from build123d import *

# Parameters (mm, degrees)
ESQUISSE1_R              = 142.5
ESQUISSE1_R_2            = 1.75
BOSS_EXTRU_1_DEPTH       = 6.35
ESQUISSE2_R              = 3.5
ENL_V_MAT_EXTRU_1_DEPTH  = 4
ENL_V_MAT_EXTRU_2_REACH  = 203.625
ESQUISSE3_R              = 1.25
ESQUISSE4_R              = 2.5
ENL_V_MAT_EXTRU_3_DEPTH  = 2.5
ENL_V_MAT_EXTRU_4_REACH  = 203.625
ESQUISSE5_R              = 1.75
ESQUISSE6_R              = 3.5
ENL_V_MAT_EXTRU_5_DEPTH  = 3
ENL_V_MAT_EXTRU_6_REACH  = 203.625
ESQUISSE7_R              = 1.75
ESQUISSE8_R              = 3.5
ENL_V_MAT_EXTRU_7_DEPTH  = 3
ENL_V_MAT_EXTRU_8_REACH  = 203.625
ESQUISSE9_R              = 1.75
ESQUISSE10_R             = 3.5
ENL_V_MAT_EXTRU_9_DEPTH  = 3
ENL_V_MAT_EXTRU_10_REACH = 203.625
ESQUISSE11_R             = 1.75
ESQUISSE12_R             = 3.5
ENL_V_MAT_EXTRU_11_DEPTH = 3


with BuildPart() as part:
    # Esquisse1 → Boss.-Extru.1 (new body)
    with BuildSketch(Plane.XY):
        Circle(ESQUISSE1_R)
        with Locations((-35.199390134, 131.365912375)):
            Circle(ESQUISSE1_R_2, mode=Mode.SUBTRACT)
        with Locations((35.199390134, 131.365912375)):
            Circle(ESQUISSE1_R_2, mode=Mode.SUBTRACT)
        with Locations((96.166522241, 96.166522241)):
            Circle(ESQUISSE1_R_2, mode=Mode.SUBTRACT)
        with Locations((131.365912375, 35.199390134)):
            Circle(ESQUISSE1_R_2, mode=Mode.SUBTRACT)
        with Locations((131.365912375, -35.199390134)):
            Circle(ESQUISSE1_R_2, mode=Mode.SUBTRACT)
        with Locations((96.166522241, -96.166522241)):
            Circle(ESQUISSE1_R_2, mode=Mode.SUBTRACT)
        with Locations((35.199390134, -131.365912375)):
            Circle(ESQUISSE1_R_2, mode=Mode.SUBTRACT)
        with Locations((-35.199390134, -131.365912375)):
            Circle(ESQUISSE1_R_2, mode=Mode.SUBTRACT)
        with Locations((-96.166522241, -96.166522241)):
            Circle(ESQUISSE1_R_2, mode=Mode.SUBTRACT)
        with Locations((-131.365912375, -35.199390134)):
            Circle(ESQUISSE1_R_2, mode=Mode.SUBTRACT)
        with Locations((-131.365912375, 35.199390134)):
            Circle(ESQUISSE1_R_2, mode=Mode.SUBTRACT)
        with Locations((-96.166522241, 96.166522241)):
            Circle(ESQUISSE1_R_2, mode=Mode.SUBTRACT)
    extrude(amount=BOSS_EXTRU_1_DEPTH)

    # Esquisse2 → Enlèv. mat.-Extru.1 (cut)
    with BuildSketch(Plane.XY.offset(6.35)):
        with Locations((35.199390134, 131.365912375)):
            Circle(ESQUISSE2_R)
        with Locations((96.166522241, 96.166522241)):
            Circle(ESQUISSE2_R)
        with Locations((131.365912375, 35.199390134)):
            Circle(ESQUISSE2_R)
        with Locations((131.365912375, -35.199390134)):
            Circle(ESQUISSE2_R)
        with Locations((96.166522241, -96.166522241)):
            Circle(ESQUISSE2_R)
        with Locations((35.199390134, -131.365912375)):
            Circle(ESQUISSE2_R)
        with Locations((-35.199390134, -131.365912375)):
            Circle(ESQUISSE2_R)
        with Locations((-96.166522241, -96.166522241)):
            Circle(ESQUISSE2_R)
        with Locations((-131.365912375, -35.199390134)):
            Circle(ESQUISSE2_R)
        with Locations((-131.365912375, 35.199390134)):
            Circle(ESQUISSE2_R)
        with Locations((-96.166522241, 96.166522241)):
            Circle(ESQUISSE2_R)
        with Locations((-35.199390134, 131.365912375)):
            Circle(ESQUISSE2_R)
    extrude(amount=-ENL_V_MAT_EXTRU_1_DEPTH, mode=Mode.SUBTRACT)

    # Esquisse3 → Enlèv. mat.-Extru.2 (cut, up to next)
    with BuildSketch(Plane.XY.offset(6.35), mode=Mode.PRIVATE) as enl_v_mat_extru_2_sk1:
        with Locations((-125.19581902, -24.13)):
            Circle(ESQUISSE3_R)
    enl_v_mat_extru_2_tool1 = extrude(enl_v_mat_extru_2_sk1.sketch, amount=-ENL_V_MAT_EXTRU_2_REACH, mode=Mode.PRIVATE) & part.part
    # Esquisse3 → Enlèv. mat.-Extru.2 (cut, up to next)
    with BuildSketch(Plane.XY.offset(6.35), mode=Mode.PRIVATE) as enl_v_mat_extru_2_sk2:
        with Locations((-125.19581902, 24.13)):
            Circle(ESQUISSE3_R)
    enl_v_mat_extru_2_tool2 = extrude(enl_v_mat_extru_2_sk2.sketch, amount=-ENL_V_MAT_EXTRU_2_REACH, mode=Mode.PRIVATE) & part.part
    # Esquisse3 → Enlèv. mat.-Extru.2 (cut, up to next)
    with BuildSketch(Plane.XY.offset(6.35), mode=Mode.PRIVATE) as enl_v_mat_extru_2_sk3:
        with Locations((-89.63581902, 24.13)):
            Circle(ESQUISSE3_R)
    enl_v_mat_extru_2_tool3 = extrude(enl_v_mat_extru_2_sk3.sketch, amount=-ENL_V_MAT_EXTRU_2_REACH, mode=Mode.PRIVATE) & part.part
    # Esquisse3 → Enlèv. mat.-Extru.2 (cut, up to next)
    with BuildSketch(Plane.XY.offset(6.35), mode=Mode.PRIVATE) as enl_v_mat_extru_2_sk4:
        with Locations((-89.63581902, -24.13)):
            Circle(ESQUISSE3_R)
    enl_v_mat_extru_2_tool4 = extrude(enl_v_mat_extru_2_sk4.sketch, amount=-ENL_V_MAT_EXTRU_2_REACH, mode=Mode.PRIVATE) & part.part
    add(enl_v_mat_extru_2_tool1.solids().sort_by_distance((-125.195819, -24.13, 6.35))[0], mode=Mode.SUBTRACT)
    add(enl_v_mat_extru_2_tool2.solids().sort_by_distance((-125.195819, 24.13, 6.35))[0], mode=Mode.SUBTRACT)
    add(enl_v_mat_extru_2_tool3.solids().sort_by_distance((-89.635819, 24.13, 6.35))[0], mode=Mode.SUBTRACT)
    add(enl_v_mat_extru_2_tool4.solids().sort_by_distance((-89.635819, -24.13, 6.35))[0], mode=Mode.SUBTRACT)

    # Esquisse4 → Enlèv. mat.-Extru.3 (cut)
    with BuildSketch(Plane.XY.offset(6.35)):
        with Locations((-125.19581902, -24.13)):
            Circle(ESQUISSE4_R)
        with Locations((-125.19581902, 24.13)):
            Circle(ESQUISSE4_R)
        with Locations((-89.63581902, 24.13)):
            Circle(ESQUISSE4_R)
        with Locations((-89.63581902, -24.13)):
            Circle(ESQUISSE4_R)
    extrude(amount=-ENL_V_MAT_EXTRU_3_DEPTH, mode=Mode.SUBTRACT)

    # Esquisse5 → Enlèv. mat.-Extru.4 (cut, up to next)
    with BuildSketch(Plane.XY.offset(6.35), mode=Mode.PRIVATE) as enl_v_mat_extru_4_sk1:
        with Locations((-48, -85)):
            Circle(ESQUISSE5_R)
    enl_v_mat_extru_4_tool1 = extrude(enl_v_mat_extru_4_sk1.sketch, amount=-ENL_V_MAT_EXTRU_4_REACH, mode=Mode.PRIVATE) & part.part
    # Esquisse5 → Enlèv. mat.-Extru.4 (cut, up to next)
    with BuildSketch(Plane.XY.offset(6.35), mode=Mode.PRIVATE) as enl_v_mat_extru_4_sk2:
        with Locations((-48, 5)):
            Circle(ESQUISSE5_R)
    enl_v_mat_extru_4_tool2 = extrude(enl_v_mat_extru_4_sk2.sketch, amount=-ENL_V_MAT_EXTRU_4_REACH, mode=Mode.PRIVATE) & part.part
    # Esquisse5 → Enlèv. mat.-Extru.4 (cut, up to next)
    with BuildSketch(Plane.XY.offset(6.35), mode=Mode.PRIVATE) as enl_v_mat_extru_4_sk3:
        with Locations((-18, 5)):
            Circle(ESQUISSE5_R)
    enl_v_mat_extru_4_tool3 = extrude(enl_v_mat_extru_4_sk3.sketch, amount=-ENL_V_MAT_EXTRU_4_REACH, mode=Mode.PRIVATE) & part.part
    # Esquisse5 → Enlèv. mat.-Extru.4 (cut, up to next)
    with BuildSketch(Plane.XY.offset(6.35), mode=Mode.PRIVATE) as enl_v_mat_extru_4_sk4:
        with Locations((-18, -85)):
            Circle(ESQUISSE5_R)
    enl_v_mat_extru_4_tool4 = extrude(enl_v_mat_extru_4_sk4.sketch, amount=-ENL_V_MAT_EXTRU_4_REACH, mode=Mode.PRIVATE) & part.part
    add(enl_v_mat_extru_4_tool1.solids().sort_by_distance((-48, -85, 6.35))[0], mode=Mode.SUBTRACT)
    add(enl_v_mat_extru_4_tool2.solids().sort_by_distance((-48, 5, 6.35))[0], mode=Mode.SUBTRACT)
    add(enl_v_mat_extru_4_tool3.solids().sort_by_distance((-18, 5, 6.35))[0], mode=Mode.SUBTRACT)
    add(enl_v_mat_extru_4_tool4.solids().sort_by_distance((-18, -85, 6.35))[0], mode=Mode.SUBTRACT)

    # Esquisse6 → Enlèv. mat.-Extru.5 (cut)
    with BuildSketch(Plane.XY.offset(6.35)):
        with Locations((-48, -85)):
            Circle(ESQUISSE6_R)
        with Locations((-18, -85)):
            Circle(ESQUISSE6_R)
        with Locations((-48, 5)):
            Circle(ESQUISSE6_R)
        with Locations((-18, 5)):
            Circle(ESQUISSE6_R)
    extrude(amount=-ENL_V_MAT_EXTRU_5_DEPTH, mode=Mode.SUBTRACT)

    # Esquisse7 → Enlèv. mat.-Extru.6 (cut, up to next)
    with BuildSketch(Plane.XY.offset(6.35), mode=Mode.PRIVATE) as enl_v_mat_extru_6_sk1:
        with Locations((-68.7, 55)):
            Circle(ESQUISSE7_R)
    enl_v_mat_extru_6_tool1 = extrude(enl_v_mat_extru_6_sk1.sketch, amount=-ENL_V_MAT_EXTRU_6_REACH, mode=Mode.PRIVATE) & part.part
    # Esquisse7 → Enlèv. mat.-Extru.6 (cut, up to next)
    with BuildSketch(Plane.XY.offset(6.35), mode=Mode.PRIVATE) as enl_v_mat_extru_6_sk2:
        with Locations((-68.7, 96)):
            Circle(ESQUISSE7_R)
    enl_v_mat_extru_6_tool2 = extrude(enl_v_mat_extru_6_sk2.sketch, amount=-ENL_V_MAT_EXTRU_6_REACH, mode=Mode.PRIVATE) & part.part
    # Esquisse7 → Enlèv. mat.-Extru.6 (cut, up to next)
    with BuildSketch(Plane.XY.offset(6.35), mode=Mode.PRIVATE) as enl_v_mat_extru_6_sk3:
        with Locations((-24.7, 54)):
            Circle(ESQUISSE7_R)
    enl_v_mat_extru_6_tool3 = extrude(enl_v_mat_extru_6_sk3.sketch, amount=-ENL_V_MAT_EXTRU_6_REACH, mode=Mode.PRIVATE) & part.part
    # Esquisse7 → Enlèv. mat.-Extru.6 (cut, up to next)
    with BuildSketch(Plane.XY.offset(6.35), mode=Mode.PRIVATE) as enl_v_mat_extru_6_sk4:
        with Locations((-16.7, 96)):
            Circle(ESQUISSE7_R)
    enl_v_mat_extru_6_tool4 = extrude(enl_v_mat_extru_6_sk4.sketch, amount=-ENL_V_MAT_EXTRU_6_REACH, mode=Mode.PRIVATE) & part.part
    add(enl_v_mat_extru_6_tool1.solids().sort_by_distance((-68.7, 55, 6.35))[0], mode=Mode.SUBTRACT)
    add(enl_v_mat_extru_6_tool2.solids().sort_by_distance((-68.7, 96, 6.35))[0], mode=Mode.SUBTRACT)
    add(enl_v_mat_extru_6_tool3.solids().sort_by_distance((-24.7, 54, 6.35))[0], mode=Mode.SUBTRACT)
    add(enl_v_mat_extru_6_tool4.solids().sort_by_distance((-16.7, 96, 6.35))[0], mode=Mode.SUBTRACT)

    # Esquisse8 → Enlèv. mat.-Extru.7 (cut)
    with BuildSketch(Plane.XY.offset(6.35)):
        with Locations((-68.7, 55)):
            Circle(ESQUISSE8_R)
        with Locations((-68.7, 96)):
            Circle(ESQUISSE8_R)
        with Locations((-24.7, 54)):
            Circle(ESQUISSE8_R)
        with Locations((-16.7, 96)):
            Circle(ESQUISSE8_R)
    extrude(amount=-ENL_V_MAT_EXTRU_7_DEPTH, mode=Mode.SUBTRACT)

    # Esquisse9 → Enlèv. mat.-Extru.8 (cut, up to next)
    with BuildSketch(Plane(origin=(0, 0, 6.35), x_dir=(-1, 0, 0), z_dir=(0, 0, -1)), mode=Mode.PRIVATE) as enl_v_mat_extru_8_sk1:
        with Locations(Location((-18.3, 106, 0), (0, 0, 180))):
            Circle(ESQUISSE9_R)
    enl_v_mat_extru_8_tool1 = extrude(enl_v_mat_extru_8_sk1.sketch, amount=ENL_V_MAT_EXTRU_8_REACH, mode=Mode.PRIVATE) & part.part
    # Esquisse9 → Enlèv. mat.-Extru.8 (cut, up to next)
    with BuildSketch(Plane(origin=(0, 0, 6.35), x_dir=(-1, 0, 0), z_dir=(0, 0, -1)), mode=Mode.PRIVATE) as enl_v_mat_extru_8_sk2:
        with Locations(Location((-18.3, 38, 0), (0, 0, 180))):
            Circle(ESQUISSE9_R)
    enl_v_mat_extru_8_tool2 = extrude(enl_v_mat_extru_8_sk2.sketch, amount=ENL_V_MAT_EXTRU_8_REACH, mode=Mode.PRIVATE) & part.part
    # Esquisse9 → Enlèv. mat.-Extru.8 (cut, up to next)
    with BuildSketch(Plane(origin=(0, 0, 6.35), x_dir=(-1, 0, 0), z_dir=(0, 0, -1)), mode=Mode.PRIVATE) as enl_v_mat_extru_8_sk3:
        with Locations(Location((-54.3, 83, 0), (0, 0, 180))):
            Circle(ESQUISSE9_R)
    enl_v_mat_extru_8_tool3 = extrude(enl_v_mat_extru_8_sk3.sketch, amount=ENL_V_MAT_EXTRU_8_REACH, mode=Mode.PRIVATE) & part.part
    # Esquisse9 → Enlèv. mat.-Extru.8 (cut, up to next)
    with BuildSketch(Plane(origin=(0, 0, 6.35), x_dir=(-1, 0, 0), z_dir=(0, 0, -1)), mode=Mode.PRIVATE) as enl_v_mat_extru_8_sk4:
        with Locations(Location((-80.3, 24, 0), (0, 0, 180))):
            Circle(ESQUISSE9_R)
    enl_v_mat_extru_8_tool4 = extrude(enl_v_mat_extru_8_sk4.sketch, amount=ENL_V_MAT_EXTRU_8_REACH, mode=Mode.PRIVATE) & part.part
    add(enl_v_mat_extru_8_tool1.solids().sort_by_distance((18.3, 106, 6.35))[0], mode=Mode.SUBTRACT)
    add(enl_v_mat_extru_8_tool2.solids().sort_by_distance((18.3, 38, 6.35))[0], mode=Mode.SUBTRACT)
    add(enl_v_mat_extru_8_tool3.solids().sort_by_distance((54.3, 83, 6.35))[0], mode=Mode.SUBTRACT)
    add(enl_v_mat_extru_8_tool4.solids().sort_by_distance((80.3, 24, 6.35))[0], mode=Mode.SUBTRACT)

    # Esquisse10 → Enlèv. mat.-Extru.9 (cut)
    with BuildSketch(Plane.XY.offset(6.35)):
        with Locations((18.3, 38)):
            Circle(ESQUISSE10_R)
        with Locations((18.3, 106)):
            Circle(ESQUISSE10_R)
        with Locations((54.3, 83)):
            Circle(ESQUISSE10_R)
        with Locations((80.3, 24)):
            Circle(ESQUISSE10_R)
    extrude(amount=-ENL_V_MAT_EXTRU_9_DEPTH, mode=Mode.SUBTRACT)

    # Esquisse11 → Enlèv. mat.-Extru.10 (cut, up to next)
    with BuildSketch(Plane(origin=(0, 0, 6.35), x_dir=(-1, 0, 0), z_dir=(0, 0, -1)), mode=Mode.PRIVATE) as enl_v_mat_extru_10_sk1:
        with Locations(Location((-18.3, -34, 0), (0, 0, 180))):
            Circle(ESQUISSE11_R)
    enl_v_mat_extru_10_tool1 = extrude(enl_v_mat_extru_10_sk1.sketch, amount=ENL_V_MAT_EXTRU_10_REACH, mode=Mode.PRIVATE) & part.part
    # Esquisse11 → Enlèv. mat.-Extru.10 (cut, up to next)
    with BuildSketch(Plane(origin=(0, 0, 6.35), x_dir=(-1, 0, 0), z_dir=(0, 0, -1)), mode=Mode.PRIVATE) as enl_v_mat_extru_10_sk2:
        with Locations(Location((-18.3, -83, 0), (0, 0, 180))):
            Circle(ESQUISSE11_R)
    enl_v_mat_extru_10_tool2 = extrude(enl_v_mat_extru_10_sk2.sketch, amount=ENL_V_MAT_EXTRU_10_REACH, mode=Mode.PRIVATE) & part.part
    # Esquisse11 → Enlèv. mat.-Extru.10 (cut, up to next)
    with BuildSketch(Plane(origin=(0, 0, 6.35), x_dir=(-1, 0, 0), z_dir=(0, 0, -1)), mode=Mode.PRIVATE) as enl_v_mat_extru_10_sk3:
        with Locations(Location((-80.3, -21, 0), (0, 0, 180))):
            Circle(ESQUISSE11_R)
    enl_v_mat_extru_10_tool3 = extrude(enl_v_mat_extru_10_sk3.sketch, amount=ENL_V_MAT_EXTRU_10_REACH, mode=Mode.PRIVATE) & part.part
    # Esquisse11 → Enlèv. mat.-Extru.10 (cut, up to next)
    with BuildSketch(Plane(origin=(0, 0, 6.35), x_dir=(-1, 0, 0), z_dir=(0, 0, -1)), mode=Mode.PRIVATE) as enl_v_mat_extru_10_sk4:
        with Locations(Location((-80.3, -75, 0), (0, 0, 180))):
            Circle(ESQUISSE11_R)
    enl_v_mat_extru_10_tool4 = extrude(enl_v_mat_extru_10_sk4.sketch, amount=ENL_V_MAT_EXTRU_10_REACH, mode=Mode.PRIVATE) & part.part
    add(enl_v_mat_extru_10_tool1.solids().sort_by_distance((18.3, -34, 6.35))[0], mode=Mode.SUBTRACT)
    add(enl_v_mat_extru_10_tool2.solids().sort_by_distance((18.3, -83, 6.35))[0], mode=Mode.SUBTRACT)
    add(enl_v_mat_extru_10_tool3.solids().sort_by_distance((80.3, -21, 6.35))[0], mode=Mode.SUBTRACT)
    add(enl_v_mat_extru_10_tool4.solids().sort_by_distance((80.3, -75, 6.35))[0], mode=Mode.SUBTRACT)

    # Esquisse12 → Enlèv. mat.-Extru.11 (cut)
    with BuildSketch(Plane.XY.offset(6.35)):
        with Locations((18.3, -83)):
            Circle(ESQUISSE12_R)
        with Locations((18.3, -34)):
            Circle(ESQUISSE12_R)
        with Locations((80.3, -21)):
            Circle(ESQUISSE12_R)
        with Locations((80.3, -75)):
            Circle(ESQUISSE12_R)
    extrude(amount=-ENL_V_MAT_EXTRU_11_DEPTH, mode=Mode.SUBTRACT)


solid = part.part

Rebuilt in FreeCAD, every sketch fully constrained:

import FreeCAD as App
import Part
import Sketcher
from FreeCAD import Vector

doc = App.newDocument("Part")
body = doc.addObject("PartDesign::Body", "Body")

sketch1 = doc.addObject("Sketcher::SketchObject", "Sketch")
body.addObject(sketch1)
sketch1.AttachmentSupport = (doc.XY_Plane, [""])
sketch1.MapMode = "FlatFace"
sketch1.addGeometry([
    Part.Circle(Vector(0, 0, 0), Vector(0, 0, 1), 142.5),
    Part.Circle(Vector(-96.166522, -96.166522, 0), Vector(0, 0, 1), 1.75),
    Part.Circle(Vector(-35.19939, -131.365912, 0), Vector(0, 0, 1), 1.75),
    Part.Circle(Vector(-131.365912, -35.19939, 0), Vector(0, 0, 1), 1.75),
    Part.Circle(Vector(35.19939, -131.365912, 0), Vector(0, 0, 1), 1.75),
    Part.Circle(Vector(96.166522, -96.166522, 0), Vector(0, 0, 1), 1.75),
    Part.Circle(Vector(131.365912, -35.19939, 0), Vector(0, 0, 1), 1.75),
    Part.Circle(Vector(-131.365912, 35.19939, 0), Vector(0, 0, 1), 1.75),
    Part.Circle(Vector(-96.166522, 96.166522, 0), Vector(0, 0, 1), 1.75),
    Part.Circle(Vector(-35.19939, 131.365912, 0), Vector(0, 0, 1), 1.75),
    Part.Circle(Vector(131.365912, 35.19939, 0), Vector(0, 0, 1), 1.75),
    Part.Circle(Vector(35.19939, 131.365912, 0), Vector(0, 0, 1), 1.75),
    Part.Circle(Vector(96.166522, 96.166522, 0), Vector(0, 0, 1), 1.75),
], False)
sketch1.addConstraint([
    Sketcher.Constraint("Coincident", 0, 3, -1, 1),
    Sketcher.Constraint("Equal", 1, 2),
    Sketcher.Constraint("Equal", 2, 3),
    Sketcher.Constraint("Equal", 3, 4),
    Sketcher.Constraint("Equal", 4, 5),
    Sketcher.Constraint("Equal", 5, 6),
    Sketcher.Constraint("Equal", 6, 7),
    Sketcher.Constraint("Equal", 7, 8),
    Sketcher.Constraint("Equal", 8, 9),
    Sketcher.Constraint("Equal", 9, 10),
    Sketcher.Constraint("Equal", 10, 11),
    Sketcher.Constraint("Equal", 11, 12),
    Sketcher.Constraint("Symmetric", 6, 3, 7, 3, -1, 1),
    Sketcher.Constraint("Symmetric", 5, 3, 8, 3, -1, 1),
    Sketcher.Constraint("Symmetric", 4, 3, 9, 3, -1, 1),
    Sketcher.Constraint("Symmetric", 3, 3, 10, 3, -1, 1),
    Sketcher.Constraint("Symmetric", 2, 3, 11, 3, -1, 1),
    Sketcher.Constraint("Symmetric", 1, 3, 12, 3, -1, 1),
    Sketcher.Constraint("Symmetric", 2, 3, 4, 3, -2),
    Sketcher.Constraint("Symmetric", 1, 3, 5, 3, -2),
    Sketcher.Constraint("Symmetric", 3, 3, 6, 3, -2),
    Sketcher.Constraint("Diameter", 0, 285.0),
    Sketcher.Constraint("Diameter", 1, 3.5),
    Sketcher.Constraint("DistanceX", 2, 3, -1, 1, 35.19939),
    Sketcher.Constraint("DistanceY", 3, 3, -1, 1, 35.19939),
    Sketcher.Constraint("DistanceY", 2, 3, 1, 3, 35.19939),
    Sketcher.Constraint("DistanceX", 3, 3, 1, 3, 35.19939),
    Sketcher.Constraint("DistanceX", 1, 3, -1, 1, 96.166522),
    Sketcher.Constraint("DistanceY", 1, 3, -1, 1, 96.166522),
])
pad1 = doc.addObject("PartDesign::Pad", "Pad")
body.addObject(pad1)
pad1.Profile = sketch1
pad1.Length = 6.35

sketch2 = doc.addObject("Sketcher::SketchObject", "Sketch001")
body.addObject(sketch2)
sketch2.AttachmentSupport = (doc.XY_Plane, [""])
sketch2.MapMode = "FlatFace"
sketch2.AttachmentOffset = App.Placement(Vector(0, 0, 6.35), App.Rotation())
sketch2.addGeometry([
    Part.Circle(Vector(35.19939, 131.365912, 0), Vector(0, 0, 1), 3.5),
    Part.Circle(Vector(96.166522, 96.166522, 0), Vector(0, 0, 1), 3.5),
    Part.Circle(Vector(131.365912, 35.19939, 0), Vector(0, 0, 1), 3.5),
    Part.Circle(Vector(131.365912, -35.19939, 0), Vector(0, 0, 1), 3.5),
    Part.Circle(Vector(96.166522, -96.166522, 0), Vector(0, 0, 1), 3.5),
    Part.Circle(Vector(35.19939, -131.365912, 0), Vector(0, 0, 1), 3.5),
    Part.Circle(Vector(-35.19939, -131.365912, 0), Vector(0, 0, 1), 3.5),
    Part.Circle(Vector(-96.166522, -96.166522, 0), Vector(0, 0, 1), 3.5),
    Part.Circle(Vector(-131.365912, -35.19939, 0), Vector(0, 0, 1), 3.5),
    Part.Circle(Vector(-131.365912, 35.19939, 0), Vector(0, 0, 1), 3.5),
    Part.Circle(Vector(-96.166522, 96.166522, 0), Vector(0, 0, 1), 3.5),
    Part.Circle(Vector(-35.19939, 131.365912, 0), Vector(0, 0, 1), 3.5),
], False)
sketch2.addConstraint([
    Sketcher.Constraint("Equal", 0, 1),
    Sketcher.Constraint("Equal", 1, 2),
    Sketcher.Constraint("Equal", 2, 3),
    Sketcher.Constraint("Equal", 3, 4),
    Sketcher.Constraint("Equal", 4, 5),
    Sketcher.Constraint("Equal", 5, 6),
    Sketcher.Constraint("Equal", 6, 7),
    Sketcher.Constraint("Equal", 7, 8),
    Sketcher.Constraint("Equal", 8, 9),
    Sketcher.Constraint("Equal", 9, 10),
    Sketcher.Constraint("Equal", 10, 11),
    Sketcher.Constraint("Symmetric", 0, 3, 6, 3, -1, 1),
    Sketcher.Constraint("Symmetric", 1, 3, 7, 3, -1, 1),
    Sketcher.Constraint("Symmetric", 2, 3, 8, 3, -1, 1),
    Sketcher.Constraint("Symmetric", 3, 3, 9, 3, -1, 1),
    Sketcher.Constraint("Symmetric", 4, 3, 10, 3, -1, 1),
    Sketcher.Constraint("Symmetric", 5, 3, 11, 3, -1, 1),
    Sketcher.Constraint("Symmetric", 5, 3, 6, 3, -2),
    Sketcher.Constraint("Symmetric", 4, 3, 7, 3, -2),
    Sketcher.Constraint("Symmetric", 3, 3, 8, 3, -2),
    Sketcher.Constraint("Diameter", 0, 7.0),
    Sketcher.Constraint("DistanceX", -1, 1, 0, 3, 35.19939),
    Sketcher.Constraint("DistanceY", -1, 1, 2, 3, 35.19939),
    Sketcher.Constraint("DistanceY", 1, 3, 0, 3, 35.19939),
    Sketcher.Constraint("DistanceX", 1, 3, 2, 3, 35.19939),
    Sketcher.Constraint("DistanceY", -1, 1, 0, 3, 131.365912),
    Sketcher.Constraint("DistanceX", -1, 1, 1, 3, 96.166522),
])
pocket1 = doc.addObject("PartDesign::Pocket", "Pocket")
body.addObject(pocket1)
pocket1.Profile = sketch2
pocket1.Length = 4

sketch3 = doc.addObject("Sketcher::SketchObject", "Sketch002")
body.addObject(sketch3)
sketch3.AttachmentSupport = (doc.XY_Plane, [""])
sketch3.MapMode = "FlatFace"
sketch3.AttachmentOffset = App.Placement(Vector(0, 0, 6.35), App.Rotation())
sketch3.addGeometry(Part.Circle(Vector(-125.195819, -24.13, 0), Vector(0, 0, 1), 1.25), False)
sketch3.addConstraint([
    Sketcher.Constraint("Diameter", 0, 2.5),
    Sketcher.Constraint("DistanceY", 0, 3, -1, 1, 24.13),
    Sketcher.Constraint("DistanceX", 0, 3, -1, 1, 125.195819),
])
pocket2 = doc.addObject("PartDesign::Pocket", "Pocket001")
body.addObject(pocket2)
pocket2.Profile = sketch3
pocket2.Type = "UpToFirst"

sketch4 = doc.addObject("Sketcher::SketchObject", "Sketch003")
body.addObject(sketch4)
sketch4.AttachmentSupport = (doc.XY_Plane, [""])
sketch4.MapMode = "FlatFace"
sketch4.AttachmentOffset = App.Placement(Vector(0, 0, 6.35), App.Rotation())
sketch4.addGeometry(Part.Circle(Vector(-125.195819, 24.13, 0), Vector(0, 0, 1), 1.25), False)
sketch4.addConstraint([
    Sketcher.Constraint("Diameter", 0, 2.5),
    Sketcher.Constraint("DistanceY", -1, 1, 0, 3, 24.13),
    Sketcher.Constraint("DistanceX", 0, 3, -1, 1, 125.195819),
])
pocket3 = doc.addObject("PartDesign::Pocket", "Pocket002")
body.addObject(pocket3)
pocket3.Profile = sketch4
pocket3.Type = "UpToFirst"

sketch5 = doc.addObject("Sketcher::SketchObject", "Sketch004")
body.addObject(sketch5)
sketch5.AttachmentSupport = (doc.XY_Plane, [""])
sketch5.MapMode = "FlatFace"
sketch5.AttachmentOffset = App.Placement(Vector(0, 0, 6.35), App.Rotation())
sketch5.addGeometry(Part.Circle(Vector(-89.635819, 24.13, 0), Vector(0, 0, 1), 1.25), False)
sketch5.addConstraint([
    Sketcher.Constraint("Diameter", 0, 2.5),
    Sketcher.Constraint("DistanceY", -1, 1, 0, 3, 24.13),
    Sketcher.Constraint("DistanceX", 0, 3, -1, 1, 89.635819),
])
pocket4 = doc.addObject("PartDesign::Pocket", "Pocket003")
body.addObject(pocket4)
pocket4.Profile = sketch5
pocket4.Type = "UpToFirst"

sketch6 = doc.addObject("Sketcher::SketchObject", "Sketch005")
body.addObject(sketch6)
sketch6.AttachmentSupport = (doc.XY_Plane, [""])
sketch6.MapMode = "FlatFace"
sketch6.AttachmentOffset = App.Placement(Vector(0, 0, 6.35), App.Rotation())
sketch6.addGeometry(Part.Circle(Vector(-89.635819, -24.13, 0), Vector(0, 0, 1), 1.25), False)
sketch6.addConstraint([
    Sketcher.Constraint("Diameter", 0, 2.5),
    Sketcher.Constraint("DistanceY", 0, 3, -1, 1, 24.13),
    Sketcher.Constraint("DistanceX", 0, 3, -1, 1, 89.635819),
])
pocket5 = doc.addObject("PartDesign::Pocket", "Pocket004")
body.addObject(pocket5)
pocket5.Profile = sketch6
pocket5.Type = "UpToFirst"

sketch7 = doc.addObject("Sketcher::SketchObject", "Sketch006")
body.addObject(sketch7)
sketch7.AttachmentSupport = (doc.XY_Plane, [""])
sketch7.MapMode = "FlatFace"
sketch7.AttachmentOffset = App.Placement(Vector(0, 0, 6.35), App.Rotation())
sketch7.addGeometry([
    Part.Circle(Vector(-125.195819, -24.13, 0), Vector(0, 0, 1), 2.5),
    Part.Circle(Vector(-125.195819, 24.13, 0), Vector(0, 0, 1), 2.5),
    Part.Circle(Vector(-89.635819, 24.13, 0), Vector(0, 0, 1), 2.5),
    Part.Circle(Vector(-89.635819, -24.13, 0), Vector(0, 0, 1), 2.5),
], False)
sketch7.addConstraint([
    Sketcher.Constraint("Equal", 0, 1),
    Sketcher.Constraint("Equal", 1, 2),
    Sketcher.Constraint("Equal", 2, 3),
    Sketcher.Constraint("Symmetric", 0, 3, 1, 3, -1),
    Sketcher.Constraint("Symmetric", 2, 3, 3, 3, -1),
    Sketcher.Constraint("Horizontal", 1, 3, 2, 3),
    Sketcher.Constraint("Diameter", 0, 5.0),
    Sketcher.Constraint("DistanceY", 0, 3, -1, 1, 24.13),
    Sketcher.Constraint("DistanceX", 1, 3, 2, 3, 35.56),
    Sketcher.Constraint("DistanceX", 0, 3, -1, 1, 125.195819),
])
pocket6 = doc.addObject("PartDesign::Pocket", "Pocket005")
body.addObject(pocket6)
pocket6.Profile = sketch7
pocket6.Length = 2.5

sketch8 = doc.addObject("Sketcher::SketchObject", "Sketch007")
body.addObject(sketch8)
sketch8.AttachmentSupport = (doc.XY_Plane, [""])
sketch8.MapMode = "FlatFace"
sketch8.AttachmentOffset = App.Placement(Vector(0, 0, 6.35), App.Rotation())
sketch8.addGeometry(Part.Circle(Vector(-48, -85, 0), Vector(0, 0, 1), 1.75), False)
sketch8.addConstraint([
    Sketcher.Constraint("Diameter", 0, 3.5),
    Sketcher.Constraint("DistanceX", 0, 3, -1, 1, 48.0),
    Sketcher.Constraint("DistanceY", 0, 3, -1, 1, 85.0),
])
pocket7 = doc.addObject("PartDesign::Pocket", "Pocket006")
body.addObject(pocket7)
pocket7.Profile = sketch8
pocket7.Type = "UpToFirst"

sketch9 = doc.addObject("Sketcher::SketchObject", "Sketch008")
body.addObject(sketch9)
sketch9.AttachmentSupport = (doc.XY_Plane, [""])
sketch9.MapMode = "FlatFace"
sketch9.AttachmentOffset = App.Placement(Vector(0, 0, 6.35), App.Rotation())
sketch9.addGeometry(Part.Circle(Vector(-48, 5, 0), Vector(0, 0, 1), 1.75), False)
sketch9.addConstraint([
    Sketcher.Constraint("Diameter", 0, 3.5),
    Sketcher.Constraint("DistanceX", 0, 3, -1, 1, 48.0),
    Sketcher.Constraint("DistanceY", -1, 1, 0, 3, 5.0),
])
pocket8 = doc.addObject("PartDesign::Pocket", "Pocket007")
body.addObject(pocket8)
pocket8.Profile = sketch9
pocket8.Type = "UpToFirst"

sketch10 = doc.addObject("Sketcher::SketchObject", "Sketch009")
body.addObject(sketch10)
sketch10.AttachmentSupport = (doc.XY_Plane, [""])
sketch10.MapMode = "FlatFace"
sketch10.AttachmentOffset = App.Placement(Vector(0, 0, 6.35), App.Rotation())
sketch10.addGeometry(Part.Circle(Vector(-18, 5, 0), Vector(0, 0, 1), 1.75), False)
sketch10.addConstraint([
    Sketcher.Constraint("Diameter", 0, 3.5),
    Sketcher.Constraint("DistanceX", 0, 3, -1, 1, 18.0),
    Sketcher.Constraint("DistanceY", -1, 1, 0, 3, 5.0),
])
pocket9 = doc.addObject("PartDesign::Pocket", "Pocket008")
body.addObject(pocket9)
pocket9.Profile = sketch10
pocket9.Type = "UpToFirst"

sketch11 = doc.addObject("Sketcher::SketchObject", "Sketch010")
body.addObject(sketch11)
sketch11.AttachmentSupport = (doc.XY_Plane, [""])
sketch11.MapMode = "FlatFace"
sketch11.AttachmentOffset = App.Placement(Vector(0, 0, 6.35), App.Rotation())
sketch11.addGeometry(Part.Circle(Vector(-18, -85, 0), Vector(0, 0, 1), 1.75), False)
sketch11.addConstraint([
    Sketcher.Constraint("Diameter", 0, 3.5),
    Sketcher.Constraint("DistanceX", 0, 3, -1, 1, 18.0),
    Sketcher.Constraint("DistanceY", 0, 3, -1, 1, 85.0),
])
pocket10 = doc.addObject("PartDesign::Pocket", "Pocket009")
body.addObject(pocket10)
pocket10.Profile = sketch11
pocket10.Type = "UpToFirst"

sketch12 = doc.addObject("Sketcher::SketchObject", "Sketch011")
body.addObject(sketch12)
sketch12.AttachmentSupport = (doc.XY_Plane, [""])
sketch12.MapMode = "FlatFace"
sketch12.AttachmentOffset = App.Placement(Vector(0, 0, 6.35), App.Rotation())
sketch12.addGeometry([
    Part.Circle(Vector(-48, -85, 0), Vector(0, 0, 1), 3.5),
    Part.Circle(Vector(-18, -85, 0), Vector(0, 0, 1), 3.5),
    Part.Circle(Vector(-48, 5, 0), Vector(0, 0, 1), 3.5),
    Part.Circle(Vector(-18, 5, 0), Vector(0, 0, 1), 3.5),
], False)
sketch12.addConstraint([
    Sketcher.Constraint("Equal", 0, 1),
    Sketcher.Constraint("Equal", 1, 2),
    Sketcher.Constraint("Equal", 2, 3),
    Sketcher.Constraint("Horizontal", 0, 3, 1, 3),
    Sketcher.Constraint("Horizontal", 2, 3, 3, 3),
    Sketcher.Constraint("Vertical", 0, 3, 2, 3),
    Sketcher.Constraint("Vertical", 1, 3, 3, 3),
    Sketcher.Constraint("Diameter", 0, 7.0),
    Sketcher.Constraint("DistanceX", 0, 3, -1, 1, 48.0),
    Sketcher.Constraint("DistanceY", 0, 3, -1, 1, 85.0),
    Sketcher.Constraint("DistanceX", 1, 3, -1, 1, 18.0),
    Sketcher.Constraint("DistanceY", -1, 1, 2, 3, 5.0),
])
pocket11 = doc.addObject("PartDesign::Pocket", "Pocket010")
body.addObject(pocket11)
pocket11.Profile = sketch12
pocket11.Length = 3

sketch13 = doc.addObject("Sketcher::SketchObject", "Sketch012")
body.addObject(sketch13)
sketch13.AttachmentSupport = (doc.XY_Plane, [""])
sketch13.MapMode = "FlatFace"
sketch13.AttachmentOffset = App.Placement(Vector(0, 0, 6.35), App.Rotation())
sketch13.addGeometry(Part.Circle(Vector(-68.7, 55, 0), Vector(0, 0, 1), 1.75), False)
sketch13.addConstraint([
    Sketcher.Constraint("Diameter", 0, 3.5),
    Sketcher.Constraint("DistanceY", -1, 1, 0, 3, 55.0),
    Sketcher.Constraint("DistanceX", 0, 3, -1, 1, 68.7),
])
pocket12 = doc.addObject("PartDesign::Pocket", "Pocket011")
body.addObject(pocket12)
pocket12.Profile = sketch13
pocket12.Type = "UpToFirst"

sketch14 = doc.addObject("Sketcher::SketchObject", "Sketch013")
body.addObject(sketch14)
sketch14.AttachmentSupport = (doc.XY_Plane, [""])
sketch14.MapMode = "FlatFace"
sketch14.AttachmentOffset = App.Placement(Vector(0, 0, 6.35), App.Rotation())
sketch14.addGeometry(Part.Circle(Vector(-68.7, 96, 0), Vector(0, 0, 1), 1.75), False)
sketch14.addConstraint([
    Sketcher.Constraint("Diameter", 0, 3.5),
    Sketcher.Constraint("DistanceY", -1, 1, 0, 3, 96.0),
    Sketcher.Constraint("DistanceX", 0, 3, -1, 1, 68.7),
])
pocket13 = doc.addObject("PartDesign::Pocket", "Pocket012")
body.addObject(pocket13)
pocket13.Profile = sketch14
pocket13.Type = "UpToFirst"

sketch15 = doc.addObject("Sketcher::SketchObject", "Sketch014")
body.addObject(sketch15)
sketch15.AttachmentSupport = (doc.XY_Plane, [""])
sketch15.MapMode = "FlatFace"
sketch15.AttachmentOffset = App.Placement(Vector(0, 0, 6.35), App.Rotation())
sketch15.addGeometry(Part.Circle(Vector(-24.7, 54, 0), Vector(0, 0, 1), 1.75), False)
sketch15.addConstraint([
    Sketcher.Constraint("Diameter", 0, 3.5),
    Sketcher.Constraint("DistanceY", -1, 1, 0, 3, 54.0),
    Sketcher.Constraint("DistanceX", 0, 3, -1, 1, 24.7),
])
pocket14 = doc.addObject("PartDesign::Pocket", "Pocket013")
body.addObject(pocket14)
pocket14.Profile = sketch15
pocket14.Type = "UpToFirst"

sketch16 = doc.addObject("Sketcher::SketchObject", "Sketch015")
body.addObject(sketch16)
sketch16.AttachmentSupport = (doc.XY_Plane, [""])
sketch16.MapMode = "FlatFace"
sketch16.AttachmentOffset = App.Placement(Vector(0, 0, 6.35), App.Rotation())
sketch16.addGeometry(Part.Circle(Vector(-16.7, 96, 0), Vector(0, 0, 1), 1.75), False)
sketch16.addConstraint([
    Sketcher.Constraint("Diameter", 0, 3.5),
    Sketcher.Constraint("DistanceY", -1, 1, 0, 3, 96.0),
    Sketcher.Constraint("DistanceX", 0, 3, -1, 1, 16.7),
])
pocket15 = doc.addObject("PartDesign::Pocket", "Pocket014")
body.addObject(pocket15)
pocket15.Profile = sketch16
pocket15.Type = "UpToFirst"

sketch17 = doc.addObject("Sketcher::SketchObject", "Sketch016")
body.addObject(sketch17)
sketch17.AttachmentSupport = (doc.XY_Plane, [""])
sketch17.MapMode = "FlatFace"
sketch17.AttachmentOffset = App.Placement(Vector(0, 0, 6.35), App.Rotation())
sketch17.addGeometry([
    Part.Circle(Vector(-68.7, 55, 0), Vector(0, 0, 1), 3.5),
    Part.Circle(Vector(-68.7, 96, 0), Vector(0, 0, 1), 3.5),
    Part.Circle(Vector(-24.7, 54, 0), Vector(0, 0, 1), 3.5),
    Part.Circle(Vector(-16.7, 96, 0), Vector(0, 0, 1), 3.5),
], False)
sketch17.addConstraint([
    Sketcher.Constraint("Equal", 0, 1),
    Sketcher.Constraint("Equal", 1, 2),
    Sketcher.Constraint("Equal", 2, 3),
    Sketcher.Constraint("Horizontal", 1, 3, 3, 3),
    Sketcher.Constraint("Vertical", 0, 3, 1, 3),
    Sketcher.Constraint("Diameter", 0, 7.0),
    Sketcher.Constraint("DistanceY", -1, 1, 0, 3, 55.0),
    Sketcher.Constraint("DistanceY", -1, 1, 1, 3, 96.0),
    Sketcher.Constraint("DistanceY", -1, 1, 2, 3, 54.0),
    Sketcher.Constraint("DistanceX", 0, 3, 2, 3, 44.0),
    Sketcher.Constraint("DistanceX", 2, 3, 3, 3, 8.0),
    Sketcher.Constraint("DistanceX", 0, 3, -1, 1, 68.7),
])
pocket16 = doc.addObject("PartDesign::Pocket", "Pocket015")
body.addObject(pocket16)
pocket16.Profile = sketch17
pocket16.Length = 3

sketch18 = doc.addObject("Sketcher::SketchObject", "Sketch017")
body.addObject(sketch18)
sketch18.AttachmentSupport = (doc.XY_Plane, [""])
sketch18.MapMode = "FlatFace"
sketch18.AttachmentOffset = App.Placement(Vector(0, 0, 6.35), App.Rotation())
sketch18.addGeometry(Part.Circle(Vector(18.3, 106, 0), Vector(0, 0, 1), 1.75), False)
sketch18.addConstraint([
    Sketcher.Constraint("Diameter", 0, 3.5),
    Sketcher.Constraint("DistanceY", -1, 1, 0, 3, 106.0),
    Sketcher.Constraint("DistanceX", -1, 1, 0, 3, 18.3),
])
pocket17 = doc.addObject("PartDesign::Pocket", "Pocket016")
body.addObject(pocket17)
pocket17.Profile = sketch18
pocket17.Type = "UpToFirst"

sketch19 = doc.addObject("Sketcher::SketchObject", "Sketch018")
body.addObject(sketch19)
sketch19.AttachmentSupport = (doc.XY_Plane, [""])
sketch19.MapMode = "FlatFace"
sketch19.AttachmentOffset = App.Placement(Vector(0, 0, 6.35), App.Rotation())
sketch19.addGeometry(Part.Circle(Vector(18.3, 38, 0), Vector(0, 0, 1), 1.75), False)
sketch19.addConstraint([
    Sketcher.Constraint("Diameter", 0, 3.5),
    Sketcher.Constraint("DistanceY", -1, 1, 0, 3, 38.0),
    Sketcher.Constraint("DistanceX", -1, 1, 0, 3, 18.3),
])
pocket18 = doc.addObject("PartDesign::Pocket", "Pocket017")
body.addObject(pocket18)
pocket18.Profile = sketch19
pocket18.Type = "UpToFirst"

sketch20 = doc.addObject("Sketcher::SketchObject", "Sketch019")
body.addObject(sketch20)
sketch20.AttachmentSupport = (doc.XY_Plane, [""])
sketch20.MapMode = "FlatFace"
sketch20.AttachmentOffset = App.Placement(Vector(0, 0, 6.35), App.Rotation())
sketch20.addGeometry(Part.Circle(Vector(54.3, 83, 0), Vector(0, 0, 1), 1.75), False)
sketch20.addConstraint([
    Sketcher.Constraint("Diameter", 0, 3.5),
    Sketcher.Constraint("DistanceY", -1, 1, 0, 3, 83.0),
    Sketcher.Constraint("DistanceX", -1, 1, 0, 3, 54.3),
])
pocket19 = doc.addObject("PartDesign::Pocket", "Pocket018")
body.addObject(pocket19)
pocket19.Profile = sketch20
pocket19.Type = "UpToFirst"

sketch21 = doc.addObject("Sketcher::SketchObject", "Sketch020")
body.addObject(sketch21)
sketch21.AttachmentSupport = (doc.XY_Plane, [""])
sketch21.MapMode = "FlatFace"
sketch21.AttachmentOffset = App.Placement(Vector(0, 0, 6.35), App.Rotation())
sketch21.addGeometry(Part.Circle(Vector(80.3, 24, 0), Vector(0, 0, 1), 1.75), False)
sketch21.addConstraint([
    Sketcher.Constraint("Diameter", 0, 3.5),
    Sketcher.Constraint("DistanceY", -1, 1, 0, 3, 24.0),
    Sketcher.Constraint("DistanceX", -1, 1, 0, 3, 80.3),
])
pocket20 = doc.addObject("PartDesign::Pocket", "Pocket019")
body.addObject(pocket20)
pocket20.Profile = sketch21
pocket20.Type = "UpToFirst"

sketch22 = doc.addObject("Sketcher::SketchObject", "Sketch021")
body.addObject(sketch22)
sketch22.AttachmentSupport = (doc.XY_Plane, [""])
sketch22.MapMode = "FlatFace"
sketch22.AttachmentOffset = App.Placement(Vector(0, 0, 6.35), App.Rotation())
sketch22.addGeometry([
    Part.Circle(Vector(18.3, 38, 0), Vector(0, 0, 1), 3.5),
    Part.Circle(Vector(18.3, 106, 0), Vector(0, 0, 1), 3.5),
    Part.Circle(Vector(54.3, 83, 0), Vector(0, 0, 1), 3.5),
    Part.Circle(Vector(80.3, 24, 0), Vector(0, 0, 1), 3.5),
], False)
sketch22.addConstraint([
    Sketcher.Constraint("Equal", 0, 1),
    Sketcher.Constraint("Equal", 1, 2),
    Sketcher.Constraint("Equal", 2, 3),
    Sketcher.Constraint("Vertical", 0, 3, 1, 3),
    Sketcher.Constraint("Diameter", 0, 7.0),
    Sketcher.Constraint("DistanceY", -1, 1, 0, 3, 38.0),
    Sketcher.Constraint("DistanceY", -1, 1, 1, 3, 106.0),
    Sketcher.Constraint("DistanceY", -1, 1, 2, 3, 83.0),
    Sketcher.Constraint("DistanceY", -1, 1, 3, 3, 24.0),
    Sketcher.Constraint("DistanceX", 1, 3, 2, 3, 36.0),
    Sketcher.Constraint("DistanceX", 0, 3, 3, 3, 62.0),
    Sketcher.Constraint("DistanceX", -1, 1, 0, 3, 18.3),
])
pocket21 = doc.addObject("PartDesign::Pocket", "Pocket020")
body.addObject(pocket21)
pocket21.Profile = sketch22
pocket21.Length = 3

sketch23 = doc.addObject("Sketcher::SketchObject", "Sketch022")
body.addObject(sketch23)
sketch23.AttachmentSupport = (doc.XY_Plane, [""])
sketch23.MapMode = "FlatFace"
sketch23.AttachmentOffset = App.Placement(Vector(0, 0, 6.35), App.Rotation())
sketch23.addGeometry(Part.Circle(Vector(18.3, -34, 0), Vector(0, 0, 1), 1.75), False)
sketch23.addConstraint([
    Sketcher.Constraint("Diameter", 0, 3.5),
    Sketcher.Constraint("DistanceY", 0, 3, -1, 1, 34.0),
    Sketcher.Constraint("DistanceX", -1, 1, 0, 3, 18.3),
])
pocket22 = doc.addObject("PartDesign::Pocket", "Pocket021")
body.addObject(pocket22)
pocket22.Profile = sketch23
pocket22.Type = "UpToFirst"

sketch24 = doc.addObject("Sketcher::SketchObject", "Sketch023")
body.addObject(sketch24)
sketch24.AttachmentSupport = (doc.XY_Plane, [""])
sketch24.MapMode = "FlatFace"
sketch24.AttachmentOffset = App.Placement(Vector(0, 0, 6.35), App.Rotation())
sketch24.addGeometry(Part.Circle(Vector(18.3, -83, 0), Vector(0, 0, 1), 1.75), False)
sketch24.addConstraint([
    Sketcher.Constraint("Diameter", 0, 3.5),
    Sketcher.Constraint("DistanceY", 0, 3, -1, 1, 83.0),
    Sketcher.Constraint("DistanceX", -1, 1, 0, 3, 18.3),
])
pocket23 = doc.addObject("PartDesign::Pocket", "Pocket022")
body.addObject(pocket23)
pocket23.Profile = sketch24
pocket23.Type = "UpToFirst"

sketch25 = doc.addObject("Sketcher::SketchObject", "Sketch024")
body.addObject(sketch25)
sketch25.AttachmentSupport = (doc.XY_Plane, [""])
sketch25.MapMode = "FlatFace"
sketch25.AttachmentOffset = App.Placement(Vector(0, 0, 6.35), App.Rotation())
sketch25.addGeometry(Part.Circle(Vector(80.3, -21, 0), Vector(0, 0, 1), 1.75), False)
sketch25.addConstraint([
    Sketcher.Constraint("Diameter", 0, 3.5),
    Sketcher.Constraint("DistanceY", 0, 3, -1, 1, 21.0),
    Sketcher.Constraint("DistanceX", -1, 1, 0, 3, 80.3),
])
pocket24 = doc.addObject("PartDesign::Pocket", "Pocket023")
body.addObject(pocket24)
pocket24.Profile = sketch25
pocket24.Type = "UpToFirst"

sketch26 = doc.addObject("Sketcher::SketchObject", "Sketch025")
body.addObject(sketch26)
sketch26.AttachmentSupport = (doc.XY_Plane, [""])
sketch26.MapMode = "FlatFace"
sketch26.AttachmentOffset = App.Placement(Vector(0, 0, 6.35), App.Rotation())
sketch26.addGeometry(Part.Circle(Vector(80.3, -75, 0), Vector(0, 0, 1), 1.75), False)
sketch26.addConstraint([
    Sketcher.Constraint("Diameter", 0, 3.5),
    Sketcher.Constraint("DistanceY", 0, 3, -1, 1, 75.0),
    Sketcher.Constraint("DistanceX", -1, 1, 0, 3, 80.3),
])
pocket25 = doc.addObject("PartDesign::Pocket", "Pocket024")
body.addObject(pocket25)
pocket25.Profile = sketch26
pocket25.Type = "UpToFirst"

sketch27 = doc.addObject("Sketcher::SketchObject", "Sketch026")
body.addObject(sketch27)
sketch27.AttachmentSupport = (doc.XY_Plane, [""])
sketch27.MapMode = "FlatFace"
sketch27.AttachmentOffset = App.Placement(Vector(0, 0, 6.35), App.Rotation())
sketch27.addGeometry([
    Part.Circle(Vector(18.3, -83, 0), Vector(0, 0, 1), 3.5),
    Part.Circle(Vector(18.3, -34, 0), Vector(0, 0, 1), 3.5),
    Part.Circle(Vector(80.3, -21, 0), Vector(0, 0, 1), 3.5),
    Part.Circle(Vector(80.3, -75, 0), Vector(0, 0, 1), 3.5),
], False)
sketch27.addConstraint([
    Sketcher.Constraint("Equal", 0, 1),
    Sketcher.Constraint("Equal", 1, 2),
    Sketcher.Constraint("Equal", 2, 3),
    Sketcher.Constraint("Vertical", 0, 3, 1, 3),
    Sketcher.Constraint("Vertical", 2, 3, 3, 3),
    Sketcher.Constraint("Diameter", 0, 7.0),
    Sketcher.Constraint("DistanceY", 0, 3, -1, 1, 83.0),
    Sketcher.Constraint("DistanceY", 1, 3, -1, 1, 34.0),
    Sketcher.Constraint("DistanceY", 2, 3, -1, 1, 21.0),
    Sketcher.Constraint("DistanceY", 3, 3, -1, 1, 75.0),
    Sketcher.Constraint("DistanceX", 1, 3, 2, 3, 62.0),
    Sketcher.Constraint("DistanceX", -1, 1, 0, 3, 18.3),
])
pocket26 = doc.addObject("PartDesign::Pocket", "Pocket025")
body.addObject(pocket26)
pocket26.Profile = sketch27
pocket26.Length = 3

doc.recompute()
